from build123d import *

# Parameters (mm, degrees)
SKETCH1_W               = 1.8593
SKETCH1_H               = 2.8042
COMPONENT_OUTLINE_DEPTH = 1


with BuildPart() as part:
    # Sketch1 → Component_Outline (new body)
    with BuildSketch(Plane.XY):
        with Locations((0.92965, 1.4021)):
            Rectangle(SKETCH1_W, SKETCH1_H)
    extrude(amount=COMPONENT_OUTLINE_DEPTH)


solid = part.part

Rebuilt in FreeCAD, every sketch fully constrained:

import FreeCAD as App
import Part
import Sketcher
Q = App.Units.Quantity


def add_polygon(sketch, points):
    """Adds a closed chain of lines whose ends are joined by coincident constraints."""
    first, n = sketch.GeometryCount, len(points)
    for a, b in zip(points, points[1:] + points[:1]):
        sketch.addGeometry(Part.LineSegment(App.Vector(*a, 0), App.Vector(*b, 0)), False)
    for i in range(n):
        sketch.addConstraint(Sketcher.Constraint("Coincident", first + i, 2, first + (i + 1) % n, 1))

doc = App.newDocument("Part")
params = doc.addObject("Spreadsheet::Sheet", "Params")
for row, (alias, value) in enumerate([
    ("pad1_length", "1 mm"),
], start=1):
    params.set(f"A{row}", alias)
    params.set(f"B{row}", "=" + value)
    params.setAlias(f"B{row}", alias)

body = doc.addObject("PartDesign::Body", "Body")

# Sketch on XY plane
sketch1 = body.newObject("Sketcher::SketchObject", "Sketch")
sketch1.AttachmentSupport = (doc.getObject("XY_Plane"), [""])
sketch1.MapMode = "FlatFace"
add_polygon(sketch1, [(0, 2.8), (0, 0), (1.9, 0), (1.9, 2.8)])  # lines 0-3
sketch1.addConstraint([
    Sketcher.Constraint("Vertical", 0),
    Sketcher.Constraint("Horizontal", 1),
    Sketcher.Constraint("Vertical", 2),
    Sketcher.Constraint("Horizontal", 3),
    Sketcher.Constraint("Coincident", 0, 2, -1, 1),
    Sketcher.Constraint("DistanceX", 1, 1, 1, 2, Q("1.8593 mm")),
    Sketcher.Constraint("DistanceY", 0, 2, 0, 1, Q("2.8042 mm")),
])
pad1 = body.newObject("PartDesign::Pad", "Pad")
pad1.Profile = sketch1
pad1.setExpression("Length", "Params.pad1_length")

doc.recompute()
